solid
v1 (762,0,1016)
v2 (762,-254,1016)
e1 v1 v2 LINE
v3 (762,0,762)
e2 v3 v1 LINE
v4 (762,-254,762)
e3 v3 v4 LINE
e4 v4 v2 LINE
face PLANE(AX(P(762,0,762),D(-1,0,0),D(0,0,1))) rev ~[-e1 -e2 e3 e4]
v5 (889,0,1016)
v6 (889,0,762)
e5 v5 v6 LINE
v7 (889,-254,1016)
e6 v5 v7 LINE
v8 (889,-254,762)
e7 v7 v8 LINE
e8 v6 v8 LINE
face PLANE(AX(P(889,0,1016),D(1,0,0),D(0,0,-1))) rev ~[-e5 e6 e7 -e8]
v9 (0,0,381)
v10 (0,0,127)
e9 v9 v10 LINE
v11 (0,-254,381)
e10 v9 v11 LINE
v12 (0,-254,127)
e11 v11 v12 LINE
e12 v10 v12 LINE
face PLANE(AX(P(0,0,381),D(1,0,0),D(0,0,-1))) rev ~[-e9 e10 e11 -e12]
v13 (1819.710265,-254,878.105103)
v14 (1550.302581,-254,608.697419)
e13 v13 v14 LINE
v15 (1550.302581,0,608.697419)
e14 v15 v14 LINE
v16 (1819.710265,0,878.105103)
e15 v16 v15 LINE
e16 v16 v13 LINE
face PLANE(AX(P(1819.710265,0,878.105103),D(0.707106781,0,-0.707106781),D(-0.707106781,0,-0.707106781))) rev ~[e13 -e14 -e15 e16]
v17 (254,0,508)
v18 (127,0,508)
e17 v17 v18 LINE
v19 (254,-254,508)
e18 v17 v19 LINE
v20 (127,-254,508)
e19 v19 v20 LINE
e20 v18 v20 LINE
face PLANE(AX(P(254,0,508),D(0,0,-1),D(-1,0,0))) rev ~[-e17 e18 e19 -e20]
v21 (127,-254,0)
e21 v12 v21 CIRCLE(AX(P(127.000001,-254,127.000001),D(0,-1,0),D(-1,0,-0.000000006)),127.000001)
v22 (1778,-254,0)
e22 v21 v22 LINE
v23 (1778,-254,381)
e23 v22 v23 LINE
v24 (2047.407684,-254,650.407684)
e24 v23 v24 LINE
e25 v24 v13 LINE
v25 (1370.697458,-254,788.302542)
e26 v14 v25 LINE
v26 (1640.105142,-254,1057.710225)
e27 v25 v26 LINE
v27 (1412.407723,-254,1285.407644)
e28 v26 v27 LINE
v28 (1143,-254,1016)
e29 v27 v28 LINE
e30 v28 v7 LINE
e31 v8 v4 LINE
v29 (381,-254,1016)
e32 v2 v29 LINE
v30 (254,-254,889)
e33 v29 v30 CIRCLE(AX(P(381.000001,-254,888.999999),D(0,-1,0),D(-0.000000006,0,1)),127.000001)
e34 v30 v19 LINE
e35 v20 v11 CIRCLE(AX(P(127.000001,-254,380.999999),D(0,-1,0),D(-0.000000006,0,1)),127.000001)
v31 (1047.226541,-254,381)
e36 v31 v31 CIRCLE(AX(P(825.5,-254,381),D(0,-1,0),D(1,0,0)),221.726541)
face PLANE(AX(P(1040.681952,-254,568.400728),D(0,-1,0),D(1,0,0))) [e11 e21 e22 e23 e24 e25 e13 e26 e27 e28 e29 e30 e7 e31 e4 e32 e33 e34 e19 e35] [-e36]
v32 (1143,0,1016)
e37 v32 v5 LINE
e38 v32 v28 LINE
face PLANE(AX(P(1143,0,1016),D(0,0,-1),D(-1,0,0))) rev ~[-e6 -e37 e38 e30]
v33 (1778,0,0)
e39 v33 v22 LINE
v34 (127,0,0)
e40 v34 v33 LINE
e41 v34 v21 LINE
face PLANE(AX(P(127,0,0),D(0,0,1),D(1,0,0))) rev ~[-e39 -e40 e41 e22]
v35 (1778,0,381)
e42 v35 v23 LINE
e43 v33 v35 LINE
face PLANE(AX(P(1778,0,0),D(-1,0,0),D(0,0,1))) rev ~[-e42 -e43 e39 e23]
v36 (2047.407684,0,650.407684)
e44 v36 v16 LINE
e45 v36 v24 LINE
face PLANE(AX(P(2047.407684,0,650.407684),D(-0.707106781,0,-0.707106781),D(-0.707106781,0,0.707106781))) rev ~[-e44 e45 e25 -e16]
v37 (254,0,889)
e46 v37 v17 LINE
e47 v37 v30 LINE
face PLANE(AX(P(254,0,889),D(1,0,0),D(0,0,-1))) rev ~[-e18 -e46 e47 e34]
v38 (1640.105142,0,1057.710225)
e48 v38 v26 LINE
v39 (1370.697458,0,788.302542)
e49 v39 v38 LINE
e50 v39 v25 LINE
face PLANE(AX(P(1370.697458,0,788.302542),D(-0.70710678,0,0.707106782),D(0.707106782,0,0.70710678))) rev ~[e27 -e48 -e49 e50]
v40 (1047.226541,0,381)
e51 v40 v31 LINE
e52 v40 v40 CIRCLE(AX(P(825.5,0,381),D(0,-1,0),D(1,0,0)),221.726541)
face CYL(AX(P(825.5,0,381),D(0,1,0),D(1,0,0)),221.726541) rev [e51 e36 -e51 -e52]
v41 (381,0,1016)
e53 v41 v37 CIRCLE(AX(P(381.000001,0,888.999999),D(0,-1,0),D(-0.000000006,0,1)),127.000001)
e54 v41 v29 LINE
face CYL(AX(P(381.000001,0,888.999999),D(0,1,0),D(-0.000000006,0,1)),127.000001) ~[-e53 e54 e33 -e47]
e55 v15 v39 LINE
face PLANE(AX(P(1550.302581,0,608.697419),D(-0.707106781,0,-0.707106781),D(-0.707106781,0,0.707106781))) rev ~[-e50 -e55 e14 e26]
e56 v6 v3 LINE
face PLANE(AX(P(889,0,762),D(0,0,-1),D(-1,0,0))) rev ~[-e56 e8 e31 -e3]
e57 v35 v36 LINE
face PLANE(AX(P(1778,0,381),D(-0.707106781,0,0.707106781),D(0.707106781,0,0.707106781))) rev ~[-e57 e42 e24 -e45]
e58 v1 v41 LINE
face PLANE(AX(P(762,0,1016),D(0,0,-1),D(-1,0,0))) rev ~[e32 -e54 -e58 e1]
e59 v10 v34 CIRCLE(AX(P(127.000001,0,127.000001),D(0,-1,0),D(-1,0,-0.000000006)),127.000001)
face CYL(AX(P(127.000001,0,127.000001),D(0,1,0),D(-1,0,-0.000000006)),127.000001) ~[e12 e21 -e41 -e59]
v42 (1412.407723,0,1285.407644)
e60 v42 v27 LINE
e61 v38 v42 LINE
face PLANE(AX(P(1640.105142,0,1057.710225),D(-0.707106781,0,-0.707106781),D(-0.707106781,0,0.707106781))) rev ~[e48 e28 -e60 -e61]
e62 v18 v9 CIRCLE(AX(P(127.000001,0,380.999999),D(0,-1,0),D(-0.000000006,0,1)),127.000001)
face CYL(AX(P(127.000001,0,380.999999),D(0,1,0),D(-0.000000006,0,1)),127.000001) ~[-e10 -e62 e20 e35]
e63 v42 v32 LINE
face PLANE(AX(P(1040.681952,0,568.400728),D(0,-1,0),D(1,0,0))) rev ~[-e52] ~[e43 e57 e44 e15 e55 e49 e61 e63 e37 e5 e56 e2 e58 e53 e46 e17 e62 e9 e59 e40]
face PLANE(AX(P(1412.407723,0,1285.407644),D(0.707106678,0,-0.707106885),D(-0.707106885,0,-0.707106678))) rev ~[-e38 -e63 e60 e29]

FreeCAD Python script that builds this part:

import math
import FreeCAD as App
import Part
import Sketcher

V = App.Vector
Q = App.Units.Quantity

doc = App.newDocument("Part")
body = doc.addObject("PartDesign::Body", "Body")

# Sketch on XZ plane
sketch1 = body.newObject("Sketcher::SketchObject", "Sketch")
sketch1.AttachmentSupport = (doc.getObject("XZ_Plane"), [""])
sketch1.MapMode = "FlatFace"
sketch1.addGeometry(Part.ArcOfCircle(Part.Circle(V(127.000001, 127.000001, 0), V(0, 0, 1), 127.000001), math.radians(-180), math.radians(-90)), False)
sketch1.addGeometry(Part.LineSegment(V(127, 0, 0), V(1778, 0, 0)), False)
sketch1.addGeometry(Part.LineSegment(V(1778, 0, 0), V(1778, 381, 0)), False)
sketch1.addGeometry(Part.LineSegment(V(1778, 381, 0), V(2047.407684, 650.407684, 0)), False)
sketch1.addGeometry(Part.LineSegment(V(2047.407684, 650.407684, 0), V(1819.710265, 878.105103, 0)), False)
sketch1.addGeometry(Part.LineSegment(V(1819.710265, 878.105103, 0), V(1550.302581, 608.697419, 0)), False)
sketch1.addGeometry(Part.LineSegment(V(1550.302581, 608.697419, 0), V(1370.697458, 788.302542, 0)), False)
sketch1.addGeometry(Part.LineSegment(V(1370.697458, 788.302542, 0), V(1640.105142, 1057.710225, 0)), False)
sketch1.addGeometry(Part.LineSegment(V(1640.105142, 1057.710225, 0), V(1412.407723, 1285.407644, 0)), False)
sketch1.addGeometry(Part.LineSegment(V(1412.407723, 1285.407644, 0), V(1143, 1016, 0)), False)
sketch1.addGeometry(Part.LineSegment(V(1143, 1016, 0), V(889, 1016, 0)), False)
sketch1.addGeometry(Part.LineSegment(V(889, 1016, 0), V(889, 762, 0)), False)
sketch1.addGeometry(Part.LineSegment(V(889, 762, 0), V(762, 762, 0)), False)
sketch1.addGeometry(Part.LineSegment(V(762, 762, 0), V(762, 1016, 0)), False)
sketch1.addGeometry(Part.LineSegment(V(762, 1016, 0), V(381, 1016, 0)), False)
sketch1.addGeometry(Part.ArcOfCircle(Part.Circle(V(381.000001, 888.999999, 0), V(0, 0, 1), 127.000001), math.radians(90), math.radians(180)), False)
sketch1.addGeometry(Part.LineSegment(V(254, 889, 0), V(254, 508, 0)), False)
sketch1.addGeometry(Part.LineSegment(V(254, 508, 0), V(127, 508, 0)), False)
sketch1.addGeometry(Part.ArcOfCircle(Part.Circle(V(127.000001, 380.999999, 0), V(0, 0, 1), 127.000001), math.radians(90), math.radians(180)), False)
sketch1.addGeometry(Part.LineSegment(V(0, 381, 0), V(0, 127, 0)), False)
sketch1.addGeometry(Part.Circle(V(825.5, 381, 0), V(0, 0, 1), 221.726541), False)
sketch1.addConstraint(Sketcher.Constraint("Coincident", 0, 2, 1, 1))
sketch1.addConstraint(Sketcher.Constraint("Coincident", 1, 2, 2, 1))
sketch1.addConstraint(Sketcher.Constraint("Coincident", 2, 2, 3, 1))
sketch1.addConstraint(Sketcher.Constraint("Coincident", 3, 2, 4, 1))
sketch1.addConstraint(Sketcher.Constraint("Coincident", 4, 2, 5, 1))
sketch1.addConstraint(Sketcher.Constraint("Coincident", 5, 2, 6, 1))
sketch1.addConstraint(Sketcher.Constraint("Coincident", 6, 2, 7, 1))
sketch1.addConstraint(Sketcher.Constraint("Coincident", 7, 2, 8, 1))
sketch1.addConstraint(Sketcher.Constraint("Coincident", 8, 2, 9, 1))
sketch1.addConstraint(Sketcher.Constraint("Coincident", 9, 2, 10, 1))
sketch1.addConstraint(Sketcher.Constraint("Coincident", 10, 2, 11, 1))
sketch1.addConstraint(Sketcher.Constraint("Coincident", 11, 2, 12, 1))
sketch1.addConstraint(Sketcher.Constraint("Coincident", 12, 2, 13, 1))
sketch1.addConstraint(Sketcher.Constraint("Coincident", 13, 2, 14, 1))
sketch1.addConstraint(Sketcher.Constraint("Coincident", 14, 2, 15, 1))
sketch1.addConstraint(Sketcher.Constraint("Coincident", 15, 2, 16, 1))
sketch1.addConstraint(Sketcher.Constraint("Coincident", 16, 2, 17, 1))
sketch1.addConstraint(Sketcher.Constraint("Coincident", 17, 2, 18, 1))
sketch1.addConstraint(Sketcher.Constraint("Coincident", 18, 2, 19, 1))
sketch1.addConstraint(Sketcher.Constraint("Coincident", 19, 2, 0, 1))
sketch1.addConstraint(Sketcher.Constraint("Horizontal", 1))
sketch1.addConstraint(Sketcher.Constraint("Vertical", 2))
sketch1.addConstraint(Sketcher.Constraint("Horizontal", 10))
sketch1.addConstraint(Sketcher.Constraint("Vertical", 11))
sketch1.addConstraint(Sketcher.Constraint("Horizontal", 12))
sketch1.addConstraint(Sketcher.Constraint("Vertical", 13))
sketch1.addConstraint(Sketcher.Constraint("Horizontal", 14))
sketch1.addConstraint(Sketcher.Constraint("Vertical", 16))
sketch1.addConstraint(Sketcher.Constraint("Horizontal", 17))
sketch1.addConstraint(Sketcher.Constraint("Vertical", 19))
sketch1.addConstraint(Sketcher.Constraint("PointOnObject", 0, 2, -1))
sketch1.addConstraint(Sketcher.Constraint("PointOnObject", 18, 2, -2))
sketch1.addConstraint(Sketcher.Constraint("Radius", 0, Q("5 in")))
sketch1.addConstraint(Sketcher.Constraint("Radius", 15, Q("5 in")))
sketch1.addConstraint(Sketcher.Constraint("Radius", 18, Q("5 in")))
sketch1.addConstraint(Sketcher.Constraint("DistanceX", 1, 1, 1, 2, Q("65 in")))
sketch1.addConstraint(Sketcher.Constraint("DistanceX", 10, 2, 10, 1, Q("10 in")))
sketch1.addConstraint(Sketcher.Constraint("DistanceX", 12, 2, 12, 1, Q("5 in")))
sketch1.addConstraint(Sketcher.Constraint("DistanceX", 14, 2, 14, 1, Q("15 in")))
sketch1.addConstraint(Sketcher.Constraint("DistanceX", 17, 2, 17, 1, Q("5 in")))
sketch1.addConstraint(Sketcher.Constraint("DistanceY", 2, 1, 2, 2, Q("15 in")))
sketch1.addConstraint(Sketcher.Constraint("DistanceY", 11, 2, 11, 1, Q("10 in")))
sketch1.addConstraint(Sketcher.Constraint("DistanceY", 13, 1, 13, 2, Q("10 in")))
sketch1.addConstraint(Sketcher.Constraint("DistanceY", 16, 2, 16, 1, Q("15 in")))
sketch1.addConstraint(Sketcher.Constraint("DistanceY", 19, 2, 19, 1, Q("10 in")))
sketch1.addConstraint(Sketcher.Constraint("Distance", 3, Q("15 in")))
sketch1.addConstraint(Sketcher.Constraint("Distance", 5, Q("15 in")))
sketch1.addConstraint(Sketcher.Constraint("Distance", 6, Q("10 in")))
sketch1.addConstraint(Sketcher.Constraint("Distance", 7, Q("15 in")))
sketch1.addConstraint(Sketcher.Constraint("Distance", 9, Q("15 in")))
sketch1.addConstraint(Sketcher.Constraint("DistanceX", -1, 1, 15, 3, Q("15 in")))
sketch1.addConstraint(Sketcher.Constraint("DistanceY", -1, 1, 15, 3, Q("35 in")))
sketch1.addConstraint(Sketcher.Constraint("DistanceY", -1, 1, 18, 3, Q("15 in")))
sketch1.addConstraint(Sketcher.Constraint("DistanceY", -1, 1, 20, 3, Q("15 in")))
sketch1.addConstraint(Sketcher.Constraint("DistanceX", -1, 1, 0, 2, Q("5 in")))
sketch1.addConstraint(Sketcher.Constraint("DistanceX", -1, 1, 9, 2, Q("45 in")))
sketch1.addConstraint(Sketcher.Constraint("DistanceY", -1, 1, 18, 2, Q("15 in")))
sketch1.addConstraint(Sketcher.Constraint("DistanceX", -1, 1, 20, 3, Q("32.5 in")))
sketch1.addConstraint(Sketcher.Constraint("Diameter", 20, 443.453082))
sketch1.addConstraint(Sketcher.Constraint("DistanceY", -1, 1, 8, 2, Q("50.6066002 in")))
sketch1.addConstraint(Sketcher.Constraint("DistanceY", 6, 2, 8, 2, 497.105102))
sketch1.addConstraint(Sketcher.Constraint("Distance", 4, 322.012778))
sketch1.addConstraint(Sketcher.Constraint("Distance", 8, 322.012778))
sketch1.addConstraint(Sketcher.Constraint("DistanceX", -1, 1, 5, 2, 1550.302581))
sketch1.addConstraint(Sketcher.Constraint("DistanceY", -1, 1, 5, 2, 608.697419))
sketch1.addConstraint(Sketcher.Constraint("DistanceY", 6, 2, 4, 2, 89.802561))
pad1 = body.newObject("PartDesign::Pad", "Pad")
pad1.Profile = sketch1
pad1.Length = Q("10 in")

doc.recompute()
